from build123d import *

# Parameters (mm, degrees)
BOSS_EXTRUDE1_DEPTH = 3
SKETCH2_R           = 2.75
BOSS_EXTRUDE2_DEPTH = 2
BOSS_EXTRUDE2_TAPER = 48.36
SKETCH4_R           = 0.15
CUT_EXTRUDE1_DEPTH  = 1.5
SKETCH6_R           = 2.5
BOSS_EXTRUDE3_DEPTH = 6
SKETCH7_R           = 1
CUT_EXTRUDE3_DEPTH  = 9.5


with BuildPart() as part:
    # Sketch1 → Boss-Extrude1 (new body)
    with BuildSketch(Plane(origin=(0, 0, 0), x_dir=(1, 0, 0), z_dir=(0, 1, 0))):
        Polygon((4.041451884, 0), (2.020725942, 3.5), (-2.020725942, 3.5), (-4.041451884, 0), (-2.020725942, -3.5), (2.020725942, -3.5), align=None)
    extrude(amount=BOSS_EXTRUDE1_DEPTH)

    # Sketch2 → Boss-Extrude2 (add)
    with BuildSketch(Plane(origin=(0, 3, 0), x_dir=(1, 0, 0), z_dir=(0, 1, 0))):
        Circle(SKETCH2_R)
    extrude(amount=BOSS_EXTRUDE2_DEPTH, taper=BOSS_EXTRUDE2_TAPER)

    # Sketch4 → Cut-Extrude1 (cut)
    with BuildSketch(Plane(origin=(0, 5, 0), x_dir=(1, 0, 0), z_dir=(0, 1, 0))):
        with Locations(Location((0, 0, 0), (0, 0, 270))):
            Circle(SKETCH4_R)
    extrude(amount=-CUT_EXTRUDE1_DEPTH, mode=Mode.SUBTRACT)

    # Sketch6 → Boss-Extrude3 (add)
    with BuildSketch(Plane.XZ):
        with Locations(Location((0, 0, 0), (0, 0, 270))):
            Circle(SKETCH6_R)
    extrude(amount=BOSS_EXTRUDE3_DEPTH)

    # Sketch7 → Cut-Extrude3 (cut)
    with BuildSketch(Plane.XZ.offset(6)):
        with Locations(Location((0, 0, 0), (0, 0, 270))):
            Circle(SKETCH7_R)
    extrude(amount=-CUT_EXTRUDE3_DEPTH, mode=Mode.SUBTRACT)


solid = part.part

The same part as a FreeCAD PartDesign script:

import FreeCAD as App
import Part
import Sketcher
Q = App.Units.Quantity

doc = App.newDocument("Part")
body = doc.addObject("PartDesign::Body", "Body")

sketch1 = body.newObject("Sketcher::SketchObject", "Sketch")
sketch1.AttachmentSupport = (doc.getObject("XZ_Plane"), [""])
sketch1.MapMode = "FlatFace"
sketch1.addGeometry([
    Part.LineSegment(App.Vector(4, 0, 0), App.Vector(2, -3.5, 0)),
    Part.LineSegment(App.Vector(2, -3.5, 0), App.Vector(-2, -3.5, 0)),
    Part.LineSegment(App.Vector(-2, -3.5, 0), App.Vector(-4, 0, 0)),
    Part.LineSegment(App.Vector(-4, 0, 0), App.Vector(-2, 3.5, 0)),
    Part.LineSegment(App.Vector(-2, 3.5, 0), App.Vector(2, 3.5, 0)),
    Part.LineSegment(App.Vector(2, 3.5, 0), App.Vector(4, 0, 0)),
], False)
sketch1.addConstraint([
    Sketcher.Constraint("Coincident", 0, 2, 1, 1),
    Sketcher.Constraint("Coincident", 1, 2, 2, 1),
    Sketcher.Constraint("Coincident", 2, 2, 3, 1),
    Sketcher.Constraint("Coincident", 3, 2, 4, 1),
    Sketcher.Constraint("Coincident", 4, 2, 5, 1),
    Sketcher.Constraint("Coincident", 5, 2, 0, 1),
    Sketcher.Constraint("Horizontal", 1),
    Sketcher.Constraint("Horizontal", 4),
    Sketcher.Constraint("Symmetric", 0, 2, 3, 2, -1, 1),
    Sketcher.Constraint("Symmetric", 2, 2, 5, 2, -1, 1),
    Sketcher.Constraint("PointOnObject", 2, 2, -1),
    Sketcher.Constraint("Parallel", 2, 5),
    Sketcher.Constraint("Vertical", 1, 2, 3, 2),
    Sketcher.Constraint("Angle", 0, Q("-120 deg")),
    Sketcher.Constraint("DistanceY", 1, 2, 3, 2, 7.0),
    Sketcher.Constraint("DistanceX", 1, 2, 1, 1, 4.041452),
])
pad1 = body.newObject("PartDesign::Pad", "Pad")
pad1.Profile = sketch1
pad1.Length = 3
pad1.Reversed = True

sketch2 = body.newObject("Sketcher::SketchObject", "Sketch001")
sketch2.AttachmentSupport = (doc.getObject("XZ_Plane"), [""])
sketch2.MapMode = "FlatFace"
sketch2.AttachmentOffset = App.Placement(App.Vector(0, 0, -3), App.Rotation())
sketch2.addGeometry(Part.Circle(App.Vector(0, 0, 0), App.Vector(0, 0, 1), 2.8), False)
sketch2.addConstraint([
    Sketcher.Constraint("Coincident", 0, 3, -1, 1),
    Sketcher.Constraint("Diameter", 0, 5.5),
])
pad2 = body.newObject("PartDesign::Pad", "Pad001")
pad2.Profile = sketch2
pad2.Length = 2
pad2.Reversed = True
pad2.TaperAngle = -48.36

sketch3 = body.newObject("Sketcher::SketchObject", "Sketch002")
sketch3.AttachmentSupport = (doc.getObject("XZ_Plane"), [""])
sketch3.MapMode = "FlatFace"
sketch3.AttachmentOffset = App.Placement(App.Vector(0, 0, -5), App.Rotation())
sketch3.addGeometry(Part.Circle(App.Vector(0, 0, 0), App.Vector(0, 0, 1), 0.15), False)
sketch3.addConstraint([
    Sketcher.Constraint("Coincident", 0, 3, -1, 1),
    Sketcher.Constraint("Diameter", 0, 0.3),
])
pocket1 = body.newObject("PartDesign::Pocket", "Pocket")
pocket1.Profile = sketch3
pocket1.Length = 1.5
pocket1.Reversed = True

sketch4 = body.newObject("Sketcher::SketchObject", "Sketch003")
sketch4.AttachmentSupport = (doc.getObject("XZ_Plane"), [""])
sketch4.MapMode = "FlatFace"
sketch4.addGeometry(Part.Circle(App.Vector(0, 0, 0), App.Vector(0, 0, 1), 2.5), False)
sketch4.addConstraint([
    Sketcher.Constraint("Coincident", 0, 3, -1, 1),
    Sketcher.Constraint("Diameter", 0, 5.0),
])
pad3 = body.newObject("PartDesign::Pad", "Pad002")
pad3.Profile = sketch4
pad3.Length = 6

sketch5 = body.newObject("Sketcher::SketchObject", "Sketch004")
sketch5.AttachmentSupport = (doc.getObject("XZ_Plane"), [""])
sketch5.MapMode = "FlatFace"
sketch5.AttachmentOffset = App.Placement(App.Vector(0, 0, 6), App.Rotation())
sketch5.addGeometry(Part.Circle(App.Vector(0, 0, 0), App.Vector(0, 0, 1), 1), False)
sketch5.addConstraint([
    Sketcher.Constraint("Coincident", 0, 3, -1, 1),
    Sketcher.Constraint("Diameter", 0, 2.0),
])
pocket2 = body.newObject("PartDesign::Pocket", "Pocket001")
pocket2.Profile = sketch5
pocket2.Length = 9.5

doc.recompute()
